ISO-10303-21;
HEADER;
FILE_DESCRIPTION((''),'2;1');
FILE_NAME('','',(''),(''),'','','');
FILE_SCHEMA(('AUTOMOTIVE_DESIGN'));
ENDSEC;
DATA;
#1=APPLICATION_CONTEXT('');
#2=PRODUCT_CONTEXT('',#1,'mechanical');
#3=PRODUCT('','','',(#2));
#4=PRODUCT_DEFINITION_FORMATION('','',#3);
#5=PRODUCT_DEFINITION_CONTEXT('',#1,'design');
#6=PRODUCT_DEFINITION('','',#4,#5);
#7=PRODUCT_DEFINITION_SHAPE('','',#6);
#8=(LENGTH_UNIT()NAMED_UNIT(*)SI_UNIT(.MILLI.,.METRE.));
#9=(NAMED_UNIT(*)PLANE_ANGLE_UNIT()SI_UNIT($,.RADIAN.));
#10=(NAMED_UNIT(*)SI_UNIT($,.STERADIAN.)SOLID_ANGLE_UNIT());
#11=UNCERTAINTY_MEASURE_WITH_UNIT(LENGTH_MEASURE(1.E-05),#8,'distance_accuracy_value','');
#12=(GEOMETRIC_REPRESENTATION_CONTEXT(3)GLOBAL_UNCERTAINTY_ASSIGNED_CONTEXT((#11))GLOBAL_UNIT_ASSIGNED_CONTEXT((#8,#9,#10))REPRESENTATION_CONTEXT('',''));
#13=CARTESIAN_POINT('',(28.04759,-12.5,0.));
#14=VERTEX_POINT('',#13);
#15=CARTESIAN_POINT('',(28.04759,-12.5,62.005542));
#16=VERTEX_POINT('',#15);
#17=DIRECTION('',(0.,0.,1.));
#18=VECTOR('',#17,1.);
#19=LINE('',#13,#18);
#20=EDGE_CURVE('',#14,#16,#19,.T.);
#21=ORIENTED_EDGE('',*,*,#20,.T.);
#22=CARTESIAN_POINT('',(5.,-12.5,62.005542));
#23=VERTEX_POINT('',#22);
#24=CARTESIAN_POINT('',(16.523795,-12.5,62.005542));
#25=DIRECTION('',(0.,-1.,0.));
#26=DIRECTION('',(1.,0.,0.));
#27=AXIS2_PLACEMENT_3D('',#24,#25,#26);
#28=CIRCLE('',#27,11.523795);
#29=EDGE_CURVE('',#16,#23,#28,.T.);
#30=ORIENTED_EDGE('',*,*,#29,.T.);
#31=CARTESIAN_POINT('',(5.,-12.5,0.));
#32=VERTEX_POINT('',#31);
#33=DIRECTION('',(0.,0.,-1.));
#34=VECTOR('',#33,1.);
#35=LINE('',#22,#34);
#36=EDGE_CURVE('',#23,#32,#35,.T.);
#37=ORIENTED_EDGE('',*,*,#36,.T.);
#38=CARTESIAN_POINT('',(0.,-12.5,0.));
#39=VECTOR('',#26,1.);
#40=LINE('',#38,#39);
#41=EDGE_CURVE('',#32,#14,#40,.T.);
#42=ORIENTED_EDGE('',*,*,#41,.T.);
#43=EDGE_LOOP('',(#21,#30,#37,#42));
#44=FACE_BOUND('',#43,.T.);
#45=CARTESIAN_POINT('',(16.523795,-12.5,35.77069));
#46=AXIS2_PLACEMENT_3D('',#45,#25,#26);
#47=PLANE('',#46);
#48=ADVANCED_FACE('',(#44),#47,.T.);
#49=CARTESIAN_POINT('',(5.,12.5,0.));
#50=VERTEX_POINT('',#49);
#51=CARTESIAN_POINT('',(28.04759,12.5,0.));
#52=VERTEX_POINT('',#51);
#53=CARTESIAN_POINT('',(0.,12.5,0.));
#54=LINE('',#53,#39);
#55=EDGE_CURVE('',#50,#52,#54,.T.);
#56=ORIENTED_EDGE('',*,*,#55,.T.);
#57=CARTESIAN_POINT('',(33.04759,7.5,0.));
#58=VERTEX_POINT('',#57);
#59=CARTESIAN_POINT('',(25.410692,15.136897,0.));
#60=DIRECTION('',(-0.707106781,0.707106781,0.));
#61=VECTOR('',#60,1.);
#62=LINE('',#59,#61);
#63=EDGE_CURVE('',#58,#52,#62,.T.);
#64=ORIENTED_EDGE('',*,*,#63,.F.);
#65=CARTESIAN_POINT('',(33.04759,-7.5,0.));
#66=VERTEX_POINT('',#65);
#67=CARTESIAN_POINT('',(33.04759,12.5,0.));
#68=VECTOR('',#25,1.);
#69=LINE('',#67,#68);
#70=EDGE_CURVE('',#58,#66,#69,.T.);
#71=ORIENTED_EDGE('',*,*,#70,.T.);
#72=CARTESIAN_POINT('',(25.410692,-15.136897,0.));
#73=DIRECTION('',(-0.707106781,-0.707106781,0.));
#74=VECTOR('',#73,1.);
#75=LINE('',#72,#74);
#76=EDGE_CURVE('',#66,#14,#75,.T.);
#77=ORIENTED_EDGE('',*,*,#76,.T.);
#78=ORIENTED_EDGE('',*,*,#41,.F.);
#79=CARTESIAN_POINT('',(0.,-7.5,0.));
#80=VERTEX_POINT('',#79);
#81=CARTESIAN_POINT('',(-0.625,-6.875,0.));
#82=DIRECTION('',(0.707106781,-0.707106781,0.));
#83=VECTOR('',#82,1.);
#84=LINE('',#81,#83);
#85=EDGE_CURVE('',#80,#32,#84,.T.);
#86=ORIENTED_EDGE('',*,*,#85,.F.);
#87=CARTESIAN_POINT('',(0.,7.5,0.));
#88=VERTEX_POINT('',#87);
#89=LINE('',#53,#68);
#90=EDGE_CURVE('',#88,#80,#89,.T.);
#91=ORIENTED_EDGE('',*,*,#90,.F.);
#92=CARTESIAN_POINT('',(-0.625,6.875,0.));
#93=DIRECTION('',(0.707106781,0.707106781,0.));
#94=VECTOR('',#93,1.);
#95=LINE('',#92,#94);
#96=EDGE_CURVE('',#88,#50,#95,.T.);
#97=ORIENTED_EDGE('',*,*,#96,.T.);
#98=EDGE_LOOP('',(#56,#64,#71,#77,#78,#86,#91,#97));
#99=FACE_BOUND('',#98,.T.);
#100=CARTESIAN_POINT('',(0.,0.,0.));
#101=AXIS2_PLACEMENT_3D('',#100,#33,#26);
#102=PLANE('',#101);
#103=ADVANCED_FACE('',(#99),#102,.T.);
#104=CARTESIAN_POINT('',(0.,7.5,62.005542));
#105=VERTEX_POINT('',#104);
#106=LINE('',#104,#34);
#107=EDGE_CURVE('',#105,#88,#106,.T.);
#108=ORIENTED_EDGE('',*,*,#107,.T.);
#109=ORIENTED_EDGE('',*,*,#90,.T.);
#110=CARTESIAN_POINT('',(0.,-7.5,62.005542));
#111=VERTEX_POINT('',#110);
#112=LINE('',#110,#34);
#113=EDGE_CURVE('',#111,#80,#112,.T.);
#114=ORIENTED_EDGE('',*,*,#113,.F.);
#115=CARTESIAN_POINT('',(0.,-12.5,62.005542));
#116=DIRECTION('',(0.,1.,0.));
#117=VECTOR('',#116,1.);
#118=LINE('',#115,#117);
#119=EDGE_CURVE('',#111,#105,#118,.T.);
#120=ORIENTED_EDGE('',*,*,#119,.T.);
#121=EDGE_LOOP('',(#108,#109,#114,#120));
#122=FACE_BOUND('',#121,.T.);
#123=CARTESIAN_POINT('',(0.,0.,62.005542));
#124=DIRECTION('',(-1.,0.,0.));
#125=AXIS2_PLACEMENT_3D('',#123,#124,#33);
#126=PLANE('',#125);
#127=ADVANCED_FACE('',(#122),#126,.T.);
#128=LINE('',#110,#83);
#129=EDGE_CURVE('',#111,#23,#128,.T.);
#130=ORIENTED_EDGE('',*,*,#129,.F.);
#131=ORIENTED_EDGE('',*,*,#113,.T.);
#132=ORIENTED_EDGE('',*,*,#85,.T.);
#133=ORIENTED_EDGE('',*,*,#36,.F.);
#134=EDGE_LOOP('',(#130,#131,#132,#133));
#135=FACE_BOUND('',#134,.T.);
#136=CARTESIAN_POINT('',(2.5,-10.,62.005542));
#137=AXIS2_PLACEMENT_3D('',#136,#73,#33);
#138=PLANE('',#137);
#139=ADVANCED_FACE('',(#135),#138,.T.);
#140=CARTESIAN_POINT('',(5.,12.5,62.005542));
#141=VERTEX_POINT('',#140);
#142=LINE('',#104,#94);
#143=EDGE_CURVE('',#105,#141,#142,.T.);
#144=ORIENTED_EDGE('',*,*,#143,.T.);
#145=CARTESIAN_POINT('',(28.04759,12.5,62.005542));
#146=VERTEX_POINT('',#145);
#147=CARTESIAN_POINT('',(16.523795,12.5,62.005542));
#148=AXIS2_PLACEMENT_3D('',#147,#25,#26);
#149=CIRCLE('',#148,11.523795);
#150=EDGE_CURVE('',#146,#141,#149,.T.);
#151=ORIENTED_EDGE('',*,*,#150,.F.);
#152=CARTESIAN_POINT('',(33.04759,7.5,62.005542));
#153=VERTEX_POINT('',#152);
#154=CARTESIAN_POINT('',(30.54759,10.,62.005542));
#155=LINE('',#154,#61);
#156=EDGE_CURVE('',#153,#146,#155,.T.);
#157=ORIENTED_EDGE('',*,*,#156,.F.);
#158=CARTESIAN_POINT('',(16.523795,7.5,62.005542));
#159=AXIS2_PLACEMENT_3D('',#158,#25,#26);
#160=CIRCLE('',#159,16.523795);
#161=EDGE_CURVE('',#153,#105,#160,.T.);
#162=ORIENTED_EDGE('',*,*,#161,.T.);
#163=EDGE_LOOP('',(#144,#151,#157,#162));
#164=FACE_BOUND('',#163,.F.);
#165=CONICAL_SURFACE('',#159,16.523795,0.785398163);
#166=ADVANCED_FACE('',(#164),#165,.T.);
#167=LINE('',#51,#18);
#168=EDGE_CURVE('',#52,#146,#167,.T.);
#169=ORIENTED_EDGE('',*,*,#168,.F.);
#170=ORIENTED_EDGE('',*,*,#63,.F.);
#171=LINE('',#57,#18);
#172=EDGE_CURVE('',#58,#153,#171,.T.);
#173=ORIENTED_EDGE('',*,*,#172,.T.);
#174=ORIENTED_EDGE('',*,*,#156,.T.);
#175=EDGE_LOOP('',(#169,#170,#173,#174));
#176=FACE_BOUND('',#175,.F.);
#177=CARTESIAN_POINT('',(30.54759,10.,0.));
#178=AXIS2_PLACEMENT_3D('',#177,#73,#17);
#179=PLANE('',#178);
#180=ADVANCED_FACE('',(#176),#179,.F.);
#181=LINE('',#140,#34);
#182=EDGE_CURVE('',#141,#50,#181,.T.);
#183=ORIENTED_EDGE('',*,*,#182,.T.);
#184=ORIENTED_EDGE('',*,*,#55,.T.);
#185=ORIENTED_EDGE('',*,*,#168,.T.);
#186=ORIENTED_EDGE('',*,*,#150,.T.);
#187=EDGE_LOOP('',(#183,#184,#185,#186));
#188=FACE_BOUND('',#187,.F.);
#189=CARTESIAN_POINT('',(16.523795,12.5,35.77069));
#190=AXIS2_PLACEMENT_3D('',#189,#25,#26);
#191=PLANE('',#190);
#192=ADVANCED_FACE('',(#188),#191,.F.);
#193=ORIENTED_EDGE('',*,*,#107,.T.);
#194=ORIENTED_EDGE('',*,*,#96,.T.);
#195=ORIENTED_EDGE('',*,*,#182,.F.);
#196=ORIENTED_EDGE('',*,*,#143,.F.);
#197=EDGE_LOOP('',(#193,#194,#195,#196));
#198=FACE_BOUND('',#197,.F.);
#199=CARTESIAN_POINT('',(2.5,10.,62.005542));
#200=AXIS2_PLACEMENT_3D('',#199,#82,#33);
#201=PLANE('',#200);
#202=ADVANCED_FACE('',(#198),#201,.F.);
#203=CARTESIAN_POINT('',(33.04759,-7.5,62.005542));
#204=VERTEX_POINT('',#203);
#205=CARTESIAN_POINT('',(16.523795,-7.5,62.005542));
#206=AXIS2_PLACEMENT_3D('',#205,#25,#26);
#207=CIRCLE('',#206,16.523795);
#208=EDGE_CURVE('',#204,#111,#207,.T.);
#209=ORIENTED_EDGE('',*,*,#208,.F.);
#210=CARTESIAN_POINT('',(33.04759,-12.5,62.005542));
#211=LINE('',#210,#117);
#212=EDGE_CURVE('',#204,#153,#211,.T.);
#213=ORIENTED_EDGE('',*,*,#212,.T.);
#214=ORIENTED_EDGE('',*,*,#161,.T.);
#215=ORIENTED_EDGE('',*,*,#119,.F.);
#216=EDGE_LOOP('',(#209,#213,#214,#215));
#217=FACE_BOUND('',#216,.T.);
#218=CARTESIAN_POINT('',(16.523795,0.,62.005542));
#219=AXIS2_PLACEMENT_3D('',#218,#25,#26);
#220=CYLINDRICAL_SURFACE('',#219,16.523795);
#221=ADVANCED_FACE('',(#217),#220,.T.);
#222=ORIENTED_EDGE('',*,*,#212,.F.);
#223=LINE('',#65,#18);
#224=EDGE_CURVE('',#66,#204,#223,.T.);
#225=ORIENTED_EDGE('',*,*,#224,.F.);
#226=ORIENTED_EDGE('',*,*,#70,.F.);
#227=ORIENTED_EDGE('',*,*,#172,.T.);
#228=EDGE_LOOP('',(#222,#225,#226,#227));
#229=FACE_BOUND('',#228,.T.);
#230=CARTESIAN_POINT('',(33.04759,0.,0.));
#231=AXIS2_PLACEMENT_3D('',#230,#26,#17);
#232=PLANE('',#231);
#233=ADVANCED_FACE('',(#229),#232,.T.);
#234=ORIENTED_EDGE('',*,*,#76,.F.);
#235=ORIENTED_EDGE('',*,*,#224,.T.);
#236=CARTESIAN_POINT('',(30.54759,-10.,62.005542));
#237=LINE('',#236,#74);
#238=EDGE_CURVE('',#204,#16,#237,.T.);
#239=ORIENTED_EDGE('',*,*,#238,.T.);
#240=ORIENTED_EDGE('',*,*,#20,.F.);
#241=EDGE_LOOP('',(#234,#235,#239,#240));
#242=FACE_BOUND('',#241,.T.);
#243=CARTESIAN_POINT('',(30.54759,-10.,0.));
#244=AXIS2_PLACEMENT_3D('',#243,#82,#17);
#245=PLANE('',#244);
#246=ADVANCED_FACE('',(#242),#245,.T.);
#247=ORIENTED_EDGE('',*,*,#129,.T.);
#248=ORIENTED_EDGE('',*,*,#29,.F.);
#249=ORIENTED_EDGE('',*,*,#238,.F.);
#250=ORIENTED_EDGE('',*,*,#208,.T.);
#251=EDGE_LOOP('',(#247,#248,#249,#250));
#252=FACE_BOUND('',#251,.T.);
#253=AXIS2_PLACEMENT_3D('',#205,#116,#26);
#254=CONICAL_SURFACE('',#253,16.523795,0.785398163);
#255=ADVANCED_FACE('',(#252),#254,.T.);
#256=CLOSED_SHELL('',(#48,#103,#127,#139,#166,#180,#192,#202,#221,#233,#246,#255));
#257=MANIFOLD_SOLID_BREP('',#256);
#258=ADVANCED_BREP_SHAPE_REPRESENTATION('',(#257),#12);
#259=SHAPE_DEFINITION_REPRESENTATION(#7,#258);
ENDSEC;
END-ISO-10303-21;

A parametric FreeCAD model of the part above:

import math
import FreeCAD as App
import Part
import Sketcher

V = App.Vector
Q = App.Units.Quantity


def edges_at(feature, points):
    """Names of the edges that pass closest to the given points."""
    edges = feature.Shape.Edges
    near = lambda p: min(range(len(edges)), key=lambda i: edges[i].distToShape(Part.Vertex(*p))[0])
    return sorted({f"Edge{near(p) + 1}" for p in points})

doc = App.newDocument("Part")
params = doc.addObject("Spreadsheet::Sheet", "Params")
for row, (alias, value) in enumerate([
    ("pad1_length", "25 mm"),
    ("chamfer_size", "5 mm"),
], start=1):
    params.set(f"A{row}", alias)
    params.set(f"B{row}", "=" + value)
    params.setAlias(f"B{row}", alias)

body = doc.addObject("PartDesign::Body", "Body")

sketch1 = doc.addObject("Sketcher::SketchObject", "Sketch")
body.addObject(sketch1)
sketch1.AttachmentSupport = (doc.XZ_Plane, [""])
sketch1.MapMode = "FlatFace"
sketch1.addGeometry(Part.LineSegment(V(0, 62, 0), V(0, 0, 0)), False)
sketch1.addGeometry(Part.LineSegment(V(0, 0, 0), V(33, 0, 0)), False)
sketch1.addGeometry(Part.LineSegment(V(33, 0, 0), V(33, 62, 0)), False)
sketch1.addGeometry(Part.ArcOfCircle(Part.Circle(V(17, 62, 0), V(0, 0, 1), 17), math.radians(0), math.radians(180)), False)
sketch1.addConstraint(Sketcher.Constraint("Coincident", 0, 2, 1, 1))
sketch1.addConstraint(Sketcher.Constraint("Coincident", 1, 2, 2, 1))
sketch1.addConstraint(Sketcher.Constraint("Tangent", 2, 2, 3, 1))
sketch1.addConstraint(Sketcher.Constraint("Tangent", 3, 2, 0, 1))
sketch1.addConstraint(Sketcher.Constraint("Vertical", 0))
sketch1.addConstraint(Sketcher.Constraint("Horizontal", 1))
sketch1.addConstraint(Sketcher.Constraint("Vertical", 2))
sketch1.addConstraint(Sketcher.Constraint("Coincident", 0, 2, -1, 1))
sketch1.addConstraint(Sketcher.Constraint("Radius", 3, Q("16.523795 mm")))
sketch1.addConstraint(Sketcher.Constraint("DistanceY", 0, 2, 0, 1, Q("62.005542 mm")))
pad1 = doc.addObject("PartDesign::Pad", "Pad")
body.addObject(pad1)
pad1.Profile = sketch1
pad1.setExpression("Length", "Params.pad1_length")
pad1.Midplane = True
doc.recompute()

chamfer = doc.addObject("PartDesign::Chamfer", "Chamfer")
body.addObject(chamfer)
chamfer.Base = (pad1, edges_at(pad1, [(16.524, -12.5, 78.529), (16.524, 12.5, 78.529)]))
chamfer.setExpression("Size", "Params.chamfer_size")

doc.recompute()
